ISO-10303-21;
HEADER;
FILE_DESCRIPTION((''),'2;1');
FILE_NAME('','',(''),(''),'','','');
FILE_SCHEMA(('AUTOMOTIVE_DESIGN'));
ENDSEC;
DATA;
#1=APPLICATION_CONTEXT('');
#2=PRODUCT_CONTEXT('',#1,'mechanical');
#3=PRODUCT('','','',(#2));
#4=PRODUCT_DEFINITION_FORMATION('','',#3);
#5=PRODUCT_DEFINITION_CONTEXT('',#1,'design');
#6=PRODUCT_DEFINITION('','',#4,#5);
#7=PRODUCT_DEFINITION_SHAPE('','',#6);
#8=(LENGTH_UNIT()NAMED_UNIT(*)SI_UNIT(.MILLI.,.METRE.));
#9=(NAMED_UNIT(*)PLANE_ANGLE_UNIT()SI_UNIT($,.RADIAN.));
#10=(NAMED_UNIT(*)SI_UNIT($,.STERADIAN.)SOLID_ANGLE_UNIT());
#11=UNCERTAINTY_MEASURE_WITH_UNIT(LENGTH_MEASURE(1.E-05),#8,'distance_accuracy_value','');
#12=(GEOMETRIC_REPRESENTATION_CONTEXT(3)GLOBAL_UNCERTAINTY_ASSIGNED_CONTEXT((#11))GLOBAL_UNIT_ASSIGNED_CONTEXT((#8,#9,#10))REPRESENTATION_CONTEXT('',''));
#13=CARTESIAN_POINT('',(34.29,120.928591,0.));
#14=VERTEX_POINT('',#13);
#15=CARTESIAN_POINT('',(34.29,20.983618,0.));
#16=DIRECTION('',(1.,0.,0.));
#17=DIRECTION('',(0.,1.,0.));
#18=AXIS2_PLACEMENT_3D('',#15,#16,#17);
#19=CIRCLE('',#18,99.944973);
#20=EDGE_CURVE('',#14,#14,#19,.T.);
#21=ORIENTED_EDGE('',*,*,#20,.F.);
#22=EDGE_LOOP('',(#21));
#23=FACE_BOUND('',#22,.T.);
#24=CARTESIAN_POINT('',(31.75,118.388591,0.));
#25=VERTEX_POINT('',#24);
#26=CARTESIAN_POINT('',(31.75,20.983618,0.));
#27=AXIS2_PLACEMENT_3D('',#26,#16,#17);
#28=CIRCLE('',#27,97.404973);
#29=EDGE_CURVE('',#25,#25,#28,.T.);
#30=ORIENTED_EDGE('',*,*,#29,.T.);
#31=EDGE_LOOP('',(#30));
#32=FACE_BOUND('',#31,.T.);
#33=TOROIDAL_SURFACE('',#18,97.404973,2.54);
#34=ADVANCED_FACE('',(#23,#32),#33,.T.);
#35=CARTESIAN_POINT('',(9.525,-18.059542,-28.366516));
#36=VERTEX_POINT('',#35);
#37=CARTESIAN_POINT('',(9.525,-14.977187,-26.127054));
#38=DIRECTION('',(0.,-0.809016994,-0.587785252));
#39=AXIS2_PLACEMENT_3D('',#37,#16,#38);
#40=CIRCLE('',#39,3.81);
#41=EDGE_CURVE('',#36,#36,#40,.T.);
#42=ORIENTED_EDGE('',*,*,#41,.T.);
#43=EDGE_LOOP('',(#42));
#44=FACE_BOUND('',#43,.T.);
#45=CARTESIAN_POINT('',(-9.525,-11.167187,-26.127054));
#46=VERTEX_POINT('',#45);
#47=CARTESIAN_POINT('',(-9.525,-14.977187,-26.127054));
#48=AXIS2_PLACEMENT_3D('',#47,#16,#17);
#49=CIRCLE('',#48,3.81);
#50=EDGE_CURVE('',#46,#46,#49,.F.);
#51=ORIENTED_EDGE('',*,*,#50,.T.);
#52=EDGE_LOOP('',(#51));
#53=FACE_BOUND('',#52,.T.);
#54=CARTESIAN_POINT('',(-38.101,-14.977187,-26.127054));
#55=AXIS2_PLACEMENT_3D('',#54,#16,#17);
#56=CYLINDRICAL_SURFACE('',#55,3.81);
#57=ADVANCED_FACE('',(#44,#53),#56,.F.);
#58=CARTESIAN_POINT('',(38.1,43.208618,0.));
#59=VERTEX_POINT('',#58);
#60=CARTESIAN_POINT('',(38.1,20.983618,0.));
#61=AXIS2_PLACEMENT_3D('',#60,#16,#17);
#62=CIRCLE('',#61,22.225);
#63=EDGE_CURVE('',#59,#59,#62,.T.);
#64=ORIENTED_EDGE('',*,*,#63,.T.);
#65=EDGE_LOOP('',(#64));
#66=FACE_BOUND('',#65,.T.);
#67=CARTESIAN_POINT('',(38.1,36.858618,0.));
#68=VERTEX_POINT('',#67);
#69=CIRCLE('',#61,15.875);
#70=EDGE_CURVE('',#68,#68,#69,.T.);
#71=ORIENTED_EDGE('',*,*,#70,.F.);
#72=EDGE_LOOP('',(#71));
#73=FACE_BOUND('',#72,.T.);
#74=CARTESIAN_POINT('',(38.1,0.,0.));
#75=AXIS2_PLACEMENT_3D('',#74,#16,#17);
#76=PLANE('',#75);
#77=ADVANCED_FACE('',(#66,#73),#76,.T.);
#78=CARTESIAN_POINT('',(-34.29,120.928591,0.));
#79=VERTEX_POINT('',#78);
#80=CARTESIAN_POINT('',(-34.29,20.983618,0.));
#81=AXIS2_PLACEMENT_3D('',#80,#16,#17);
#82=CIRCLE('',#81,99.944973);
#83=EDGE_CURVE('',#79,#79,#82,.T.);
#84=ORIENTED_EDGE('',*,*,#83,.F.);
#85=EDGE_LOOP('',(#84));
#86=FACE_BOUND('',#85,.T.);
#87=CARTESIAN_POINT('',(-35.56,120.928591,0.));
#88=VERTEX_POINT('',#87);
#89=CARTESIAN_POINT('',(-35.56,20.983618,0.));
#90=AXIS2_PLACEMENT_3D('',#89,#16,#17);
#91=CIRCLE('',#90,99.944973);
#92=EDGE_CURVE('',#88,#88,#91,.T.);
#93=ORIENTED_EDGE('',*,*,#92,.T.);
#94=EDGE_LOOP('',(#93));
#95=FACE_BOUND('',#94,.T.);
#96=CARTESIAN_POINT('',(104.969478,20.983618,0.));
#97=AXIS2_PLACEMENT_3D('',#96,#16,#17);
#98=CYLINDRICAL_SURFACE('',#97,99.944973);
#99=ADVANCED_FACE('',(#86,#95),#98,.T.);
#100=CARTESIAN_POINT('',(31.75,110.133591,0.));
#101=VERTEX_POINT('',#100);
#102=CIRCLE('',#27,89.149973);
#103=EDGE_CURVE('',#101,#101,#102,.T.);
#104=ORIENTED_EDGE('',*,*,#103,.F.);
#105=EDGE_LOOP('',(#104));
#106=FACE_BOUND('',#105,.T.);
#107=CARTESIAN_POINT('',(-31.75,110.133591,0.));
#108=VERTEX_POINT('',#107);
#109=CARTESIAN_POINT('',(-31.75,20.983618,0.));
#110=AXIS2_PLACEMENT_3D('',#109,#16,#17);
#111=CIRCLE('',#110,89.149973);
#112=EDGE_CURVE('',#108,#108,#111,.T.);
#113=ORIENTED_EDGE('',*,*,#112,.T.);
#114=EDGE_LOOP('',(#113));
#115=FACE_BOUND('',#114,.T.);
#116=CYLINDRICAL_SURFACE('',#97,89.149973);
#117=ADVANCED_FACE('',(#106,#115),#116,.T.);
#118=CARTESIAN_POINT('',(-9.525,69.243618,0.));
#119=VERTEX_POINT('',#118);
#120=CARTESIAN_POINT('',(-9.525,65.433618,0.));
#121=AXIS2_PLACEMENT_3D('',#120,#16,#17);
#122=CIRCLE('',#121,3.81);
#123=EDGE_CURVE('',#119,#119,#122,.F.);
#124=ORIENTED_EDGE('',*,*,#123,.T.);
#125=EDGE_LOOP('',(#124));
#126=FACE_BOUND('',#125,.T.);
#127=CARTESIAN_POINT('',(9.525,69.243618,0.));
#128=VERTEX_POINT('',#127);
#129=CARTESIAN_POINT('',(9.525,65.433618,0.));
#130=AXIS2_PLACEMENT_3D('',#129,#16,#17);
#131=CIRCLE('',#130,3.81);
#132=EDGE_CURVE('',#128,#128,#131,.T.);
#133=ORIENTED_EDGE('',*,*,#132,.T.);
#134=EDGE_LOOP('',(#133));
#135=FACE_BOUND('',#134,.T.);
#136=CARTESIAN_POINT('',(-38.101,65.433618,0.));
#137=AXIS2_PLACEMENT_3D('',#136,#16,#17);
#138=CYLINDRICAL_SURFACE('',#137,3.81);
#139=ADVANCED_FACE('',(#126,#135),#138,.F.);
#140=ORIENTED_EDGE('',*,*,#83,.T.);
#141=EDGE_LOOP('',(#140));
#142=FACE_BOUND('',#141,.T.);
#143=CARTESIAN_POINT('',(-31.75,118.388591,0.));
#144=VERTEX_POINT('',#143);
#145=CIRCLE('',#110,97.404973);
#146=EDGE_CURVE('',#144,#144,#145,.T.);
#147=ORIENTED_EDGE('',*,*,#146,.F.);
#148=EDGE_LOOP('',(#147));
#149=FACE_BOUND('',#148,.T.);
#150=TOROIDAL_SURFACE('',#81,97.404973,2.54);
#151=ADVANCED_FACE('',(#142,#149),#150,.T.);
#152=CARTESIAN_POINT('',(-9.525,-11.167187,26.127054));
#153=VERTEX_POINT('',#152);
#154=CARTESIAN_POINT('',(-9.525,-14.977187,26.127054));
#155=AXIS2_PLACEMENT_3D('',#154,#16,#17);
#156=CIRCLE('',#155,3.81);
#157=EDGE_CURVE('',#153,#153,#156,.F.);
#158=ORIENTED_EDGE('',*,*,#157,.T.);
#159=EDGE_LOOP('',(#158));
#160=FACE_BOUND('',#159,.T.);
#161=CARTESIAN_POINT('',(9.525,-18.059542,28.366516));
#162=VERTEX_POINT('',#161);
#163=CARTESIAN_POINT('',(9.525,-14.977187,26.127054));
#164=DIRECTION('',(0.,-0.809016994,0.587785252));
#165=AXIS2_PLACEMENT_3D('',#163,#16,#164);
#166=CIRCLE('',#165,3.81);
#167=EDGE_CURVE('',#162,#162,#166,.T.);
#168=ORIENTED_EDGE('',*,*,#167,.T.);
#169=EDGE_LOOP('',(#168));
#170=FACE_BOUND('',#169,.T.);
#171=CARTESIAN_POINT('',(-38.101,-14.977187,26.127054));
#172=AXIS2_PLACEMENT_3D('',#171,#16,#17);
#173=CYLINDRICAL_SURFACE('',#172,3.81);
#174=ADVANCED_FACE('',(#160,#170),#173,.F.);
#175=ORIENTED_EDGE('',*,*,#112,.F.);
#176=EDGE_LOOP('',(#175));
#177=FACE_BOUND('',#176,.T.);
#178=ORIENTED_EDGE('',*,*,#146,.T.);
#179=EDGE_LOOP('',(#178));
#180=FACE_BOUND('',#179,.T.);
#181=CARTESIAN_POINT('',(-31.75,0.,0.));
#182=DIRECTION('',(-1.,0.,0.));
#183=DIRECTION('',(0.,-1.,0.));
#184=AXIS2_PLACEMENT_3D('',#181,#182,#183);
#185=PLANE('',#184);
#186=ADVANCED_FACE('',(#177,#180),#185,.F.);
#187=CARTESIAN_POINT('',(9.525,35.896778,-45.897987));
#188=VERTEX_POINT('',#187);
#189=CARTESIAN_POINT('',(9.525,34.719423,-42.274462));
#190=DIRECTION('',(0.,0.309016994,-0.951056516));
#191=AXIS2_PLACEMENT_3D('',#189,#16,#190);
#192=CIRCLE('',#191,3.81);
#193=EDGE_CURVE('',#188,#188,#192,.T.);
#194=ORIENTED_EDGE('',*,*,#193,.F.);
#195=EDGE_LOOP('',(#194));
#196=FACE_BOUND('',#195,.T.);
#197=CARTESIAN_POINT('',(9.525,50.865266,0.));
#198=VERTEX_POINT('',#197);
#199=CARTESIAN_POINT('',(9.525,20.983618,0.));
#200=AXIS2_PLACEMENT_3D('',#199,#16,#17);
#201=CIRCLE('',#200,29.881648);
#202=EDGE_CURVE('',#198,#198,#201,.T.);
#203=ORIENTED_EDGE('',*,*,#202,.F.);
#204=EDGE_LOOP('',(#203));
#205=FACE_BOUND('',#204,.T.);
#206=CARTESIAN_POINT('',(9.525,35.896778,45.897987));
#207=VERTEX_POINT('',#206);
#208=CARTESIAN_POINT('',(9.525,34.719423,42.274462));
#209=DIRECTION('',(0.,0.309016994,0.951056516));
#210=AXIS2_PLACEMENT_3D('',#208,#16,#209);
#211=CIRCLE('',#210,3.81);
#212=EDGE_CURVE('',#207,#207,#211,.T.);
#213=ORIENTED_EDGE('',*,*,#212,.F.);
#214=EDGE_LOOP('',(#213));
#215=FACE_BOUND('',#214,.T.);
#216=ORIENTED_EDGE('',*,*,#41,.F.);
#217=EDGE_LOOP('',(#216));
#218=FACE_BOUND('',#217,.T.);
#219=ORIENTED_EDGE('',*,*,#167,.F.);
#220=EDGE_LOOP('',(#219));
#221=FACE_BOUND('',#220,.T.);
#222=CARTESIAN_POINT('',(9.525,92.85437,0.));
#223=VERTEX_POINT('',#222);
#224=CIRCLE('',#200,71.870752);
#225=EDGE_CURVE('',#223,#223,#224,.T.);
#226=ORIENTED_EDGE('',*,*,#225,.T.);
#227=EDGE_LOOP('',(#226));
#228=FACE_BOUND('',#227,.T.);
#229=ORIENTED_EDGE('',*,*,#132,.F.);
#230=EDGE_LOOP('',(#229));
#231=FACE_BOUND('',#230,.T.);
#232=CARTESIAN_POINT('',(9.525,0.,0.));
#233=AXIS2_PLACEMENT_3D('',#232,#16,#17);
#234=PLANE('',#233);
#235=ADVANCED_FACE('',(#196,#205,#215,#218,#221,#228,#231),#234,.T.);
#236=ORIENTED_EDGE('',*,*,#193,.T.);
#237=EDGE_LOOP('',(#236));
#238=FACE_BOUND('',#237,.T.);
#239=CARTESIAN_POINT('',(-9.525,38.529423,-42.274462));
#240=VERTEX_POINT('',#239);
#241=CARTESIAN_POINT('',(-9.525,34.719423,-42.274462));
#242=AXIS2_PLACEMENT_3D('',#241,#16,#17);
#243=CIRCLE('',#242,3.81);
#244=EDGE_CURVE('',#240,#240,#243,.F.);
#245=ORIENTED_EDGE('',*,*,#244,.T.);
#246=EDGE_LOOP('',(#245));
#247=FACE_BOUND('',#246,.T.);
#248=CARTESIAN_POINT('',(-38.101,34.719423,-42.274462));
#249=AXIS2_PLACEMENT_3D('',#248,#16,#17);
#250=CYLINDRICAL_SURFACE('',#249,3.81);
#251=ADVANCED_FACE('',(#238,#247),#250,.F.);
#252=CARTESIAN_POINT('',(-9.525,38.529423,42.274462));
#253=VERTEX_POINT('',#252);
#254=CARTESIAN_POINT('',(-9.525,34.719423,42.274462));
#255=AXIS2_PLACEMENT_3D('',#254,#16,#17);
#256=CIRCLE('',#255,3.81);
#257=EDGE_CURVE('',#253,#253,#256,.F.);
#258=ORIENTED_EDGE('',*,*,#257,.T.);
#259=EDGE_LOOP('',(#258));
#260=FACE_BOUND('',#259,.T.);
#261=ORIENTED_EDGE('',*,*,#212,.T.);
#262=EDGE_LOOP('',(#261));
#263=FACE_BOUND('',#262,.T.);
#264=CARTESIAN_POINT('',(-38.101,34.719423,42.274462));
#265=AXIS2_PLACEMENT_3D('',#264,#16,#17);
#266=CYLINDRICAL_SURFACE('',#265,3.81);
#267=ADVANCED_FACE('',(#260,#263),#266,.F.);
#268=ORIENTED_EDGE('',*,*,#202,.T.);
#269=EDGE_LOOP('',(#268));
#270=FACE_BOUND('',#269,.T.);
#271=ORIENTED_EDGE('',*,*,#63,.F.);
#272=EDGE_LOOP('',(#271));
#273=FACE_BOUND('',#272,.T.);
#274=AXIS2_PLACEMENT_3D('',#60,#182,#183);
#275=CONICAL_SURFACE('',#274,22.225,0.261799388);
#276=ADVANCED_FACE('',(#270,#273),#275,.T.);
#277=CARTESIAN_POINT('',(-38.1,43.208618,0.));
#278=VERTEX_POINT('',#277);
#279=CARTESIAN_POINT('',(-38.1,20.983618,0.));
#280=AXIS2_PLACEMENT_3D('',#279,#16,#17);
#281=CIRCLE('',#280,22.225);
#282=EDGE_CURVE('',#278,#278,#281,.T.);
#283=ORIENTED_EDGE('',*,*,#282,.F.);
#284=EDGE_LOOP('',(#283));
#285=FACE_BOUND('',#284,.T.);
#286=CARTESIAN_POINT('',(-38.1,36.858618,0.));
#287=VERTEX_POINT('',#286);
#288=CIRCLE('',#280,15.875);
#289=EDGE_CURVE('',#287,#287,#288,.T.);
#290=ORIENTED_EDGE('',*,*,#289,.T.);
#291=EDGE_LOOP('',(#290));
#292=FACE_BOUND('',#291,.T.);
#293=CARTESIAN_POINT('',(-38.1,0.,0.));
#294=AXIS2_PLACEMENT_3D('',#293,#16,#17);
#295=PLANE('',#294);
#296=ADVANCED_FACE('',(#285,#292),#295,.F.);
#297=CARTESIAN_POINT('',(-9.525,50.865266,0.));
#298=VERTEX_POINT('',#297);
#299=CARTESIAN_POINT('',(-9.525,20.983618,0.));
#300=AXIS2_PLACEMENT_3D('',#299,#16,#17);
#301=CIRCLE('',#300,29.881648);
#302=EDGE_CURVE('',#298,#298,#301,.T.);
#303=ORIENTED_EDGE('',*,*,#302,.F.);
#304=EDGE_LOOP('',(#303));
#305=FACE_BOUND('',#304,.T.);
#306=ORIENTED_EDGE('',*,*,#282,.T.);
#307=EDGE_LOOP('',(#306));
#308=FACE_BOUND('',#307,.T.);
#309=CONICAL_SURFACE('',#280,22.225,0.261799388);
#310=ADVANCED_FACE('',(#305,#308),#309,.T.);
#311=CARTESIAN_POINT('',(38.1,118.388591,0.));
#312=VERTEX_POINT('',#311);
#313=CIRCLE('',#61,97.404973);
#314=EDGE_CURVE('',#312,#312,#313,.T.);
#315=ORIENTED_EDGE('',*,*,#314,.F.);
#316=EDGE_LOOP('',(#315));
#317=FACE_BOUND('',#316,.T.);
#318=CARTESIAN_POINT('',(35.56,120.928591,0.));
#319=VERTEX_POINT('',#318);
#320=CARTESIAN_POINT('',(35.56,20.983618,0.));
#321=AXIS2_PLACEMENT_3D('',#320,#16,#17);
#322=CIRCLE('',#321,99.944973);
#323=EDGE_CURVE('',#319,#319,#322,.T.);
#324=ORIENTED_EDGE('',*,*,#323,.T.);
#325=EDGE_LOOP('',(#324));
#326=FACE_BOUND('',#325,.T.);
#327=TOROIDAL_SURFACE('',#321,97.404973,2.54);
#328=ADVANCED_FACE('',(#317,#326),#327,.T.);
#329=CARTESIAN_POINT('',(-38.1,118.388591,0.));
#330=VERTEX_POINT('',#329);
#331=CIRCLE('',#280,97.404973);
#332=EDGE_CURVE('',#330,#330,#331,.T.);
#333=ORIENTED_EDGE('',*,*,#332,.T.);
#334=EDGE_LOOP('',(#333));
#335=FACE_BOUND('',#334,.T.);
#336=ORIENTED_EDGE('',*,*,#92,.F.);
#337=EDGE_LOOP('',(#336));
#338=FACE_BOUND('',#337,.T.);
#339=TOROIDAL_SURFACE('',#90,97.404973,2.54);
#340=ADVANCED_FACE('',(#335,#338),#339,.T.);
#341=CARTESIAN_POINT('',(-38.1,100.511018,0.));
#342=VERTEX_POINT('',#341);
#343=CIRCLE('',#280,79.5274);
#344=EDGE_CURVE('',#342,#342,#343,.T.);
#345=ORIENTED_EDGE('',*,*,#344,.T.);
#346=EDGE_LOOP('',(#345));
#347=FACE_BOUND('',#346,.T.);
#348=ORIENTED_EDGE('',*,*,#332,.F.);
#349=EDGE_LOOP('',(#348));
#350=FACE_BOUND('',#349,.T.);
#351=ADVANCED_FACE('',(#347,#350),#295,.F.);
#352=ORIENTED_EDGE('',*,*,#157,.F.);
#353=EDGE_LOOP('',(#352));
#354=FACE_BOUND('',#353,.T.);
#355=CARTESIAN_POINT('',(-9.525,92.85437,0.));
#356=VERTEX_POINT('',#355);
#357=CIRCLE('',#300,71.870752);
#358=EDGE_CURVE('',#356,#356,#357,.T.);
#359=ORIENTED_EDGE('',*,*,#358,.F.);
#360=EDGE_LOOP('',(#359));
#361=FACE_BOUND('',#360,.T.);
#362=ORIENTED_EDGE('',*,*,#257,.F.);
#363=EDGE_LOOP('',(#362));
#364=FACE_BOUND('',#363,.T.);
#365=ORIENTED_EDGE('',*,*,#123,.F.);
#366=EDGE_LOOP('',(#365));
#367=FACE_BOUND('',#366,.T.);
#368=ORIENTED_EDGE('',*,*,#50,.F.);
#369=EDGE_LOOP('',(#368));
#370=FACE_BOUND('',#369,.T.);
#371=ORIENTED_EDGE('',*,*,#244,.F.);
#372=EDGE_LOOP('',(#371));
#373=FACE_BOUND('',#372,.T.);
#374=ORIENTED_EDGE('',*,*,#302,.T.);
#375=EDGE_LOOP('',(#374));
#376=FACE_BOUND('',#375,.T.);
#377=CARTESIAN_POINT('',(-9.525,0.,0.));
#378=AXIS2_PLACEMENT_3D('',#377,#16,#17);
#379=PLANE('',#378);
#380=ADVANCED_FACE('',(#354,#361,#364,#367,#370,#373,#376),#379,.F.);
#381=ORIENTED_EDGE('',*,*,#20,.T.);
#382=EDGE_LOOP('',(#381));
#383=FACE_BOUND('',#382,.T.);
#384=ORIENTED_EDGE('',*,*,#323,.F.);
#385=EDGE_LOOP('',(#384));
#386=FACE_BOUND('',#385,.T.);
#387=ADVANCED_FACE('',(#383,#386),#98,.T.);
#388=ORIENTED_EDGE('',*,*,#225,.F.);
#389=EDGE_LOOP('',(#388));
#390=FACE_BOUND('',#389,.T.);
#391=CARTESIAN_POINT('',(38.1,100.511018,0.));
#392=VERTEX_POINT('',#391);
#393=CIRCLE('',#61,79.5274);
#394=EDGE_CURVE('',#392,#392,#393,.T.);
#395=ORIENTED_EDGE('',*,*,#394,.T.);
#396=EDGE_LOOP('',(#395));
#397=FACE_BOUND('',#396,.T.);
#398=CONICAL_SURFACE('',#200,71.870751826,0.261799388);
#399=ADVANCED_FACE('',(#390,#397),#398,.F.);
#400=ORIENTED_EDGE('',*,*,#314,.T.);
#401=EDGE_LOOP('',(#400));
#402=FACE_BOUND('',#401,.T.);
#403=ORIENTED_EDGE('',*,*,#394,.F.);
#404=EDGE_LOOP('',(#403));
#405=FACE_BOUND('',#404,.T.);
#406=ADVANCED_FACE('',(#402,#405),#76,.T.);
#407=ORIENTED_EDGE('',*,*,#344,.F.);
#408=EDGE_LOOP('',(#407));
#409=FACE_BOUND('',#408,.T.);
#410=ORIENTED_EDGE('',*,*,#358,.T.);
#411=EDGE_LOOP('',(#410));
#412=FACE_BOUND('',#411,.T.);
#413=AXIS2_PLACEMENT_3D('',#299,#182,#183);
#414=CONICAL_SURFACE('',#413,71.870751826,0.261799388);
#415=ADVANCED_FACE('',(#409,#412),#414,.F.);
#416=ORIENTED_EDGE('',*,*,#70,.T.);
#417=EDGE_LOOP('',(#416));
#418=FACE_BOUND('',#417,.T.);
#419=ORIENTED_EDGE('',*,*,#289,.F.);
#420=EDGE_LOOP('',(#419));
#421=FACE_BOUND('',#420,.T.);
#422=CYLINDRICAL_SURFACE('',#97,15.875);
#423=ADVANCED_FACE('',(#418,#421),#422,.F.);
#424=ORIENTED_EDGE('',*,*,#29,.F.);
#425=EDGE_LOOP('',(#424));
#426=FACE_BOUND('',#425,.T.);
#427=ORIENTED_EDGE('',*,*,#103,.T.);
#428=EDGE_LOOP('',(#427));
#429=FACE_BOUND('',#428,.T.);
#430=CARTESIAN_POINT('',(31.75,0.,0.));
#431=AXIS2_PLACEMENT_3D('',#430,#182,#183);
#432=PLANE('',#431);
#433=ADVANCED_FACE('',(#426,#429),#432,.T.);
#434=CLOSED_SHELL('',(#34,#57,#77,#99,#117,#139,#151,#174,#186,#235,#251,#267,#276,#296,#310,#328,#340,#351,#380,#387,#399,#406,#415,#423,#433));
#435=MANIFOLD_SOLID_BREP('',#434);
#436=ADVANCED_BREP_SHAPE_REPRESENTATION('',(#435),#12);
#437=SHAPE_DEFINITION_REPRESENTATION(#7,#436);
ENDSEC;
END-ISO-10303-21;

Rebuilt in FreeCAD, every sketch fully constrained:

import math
import FreeCAD as App
import Part
import Sketcher
from FreeCAD import Vector
Q = App.Units.Quantity

doc = App.newDocument("Part")
body = doc.addObject("PartDesign::Body", "Body")

# Sketch on XY plane
sketch1 = doc.addObject("Sketcher::SketchObject", "Sketch")
body.addObject(sketch1)
sketch1.AttachmentSupport = (doc.XY_Plane, [""])
sketch1.MapMode = "FlatFace"
sketch1.addGeometry([
    Part.LineSegment(Vector(38.1, 36.9, 0), Vector(38.1, 43.2, 0)),  # 0
    Part.LineSegment(Vector(38.1, 43.2, 0), Vector(9.5, 50.9, 0)),  # 1
    Part.LineSegment(Vector(9.5, 50.9, 0), Vector(9.5, 92.9, 0)),  # 2
    Part.LineSegment(Vector(9.5, 92.9, 0), Vector(38.1, 100.5, 0)),  # 3
    Part.LineSegment(Vector(38.1, 100.5, 0), Vector(38.1, 118.4, 0)),  # 4
    Part.ArcOfCircle(Part.Circle(Vector(35.6, 118.4, 0), Vector(0, 0, 1), 2.5), math.radians(0), math.radians(90)),  # 5
    Part.LineSegment(Vector(35.6, 120.9, 0), Vector(34.3, 120.9, 0)),  # 6
    Part.ArcOfCircle(Part.Circle(Vector(34.3, 118.4, 0), Vector(0, 0, 1), 2.5), math.radians(90), math.radians(180)),  # 7
    Part.LineSegment(Vector(31.8, 118.4, 0), Vector(31.8, 110.1, 0)),  # 8
    Part.LineSegment(Vector(31.8, 110.1, 0), Vector(-31.8, 110.1, 0)),  # 9
    Part.LineSegment(Vector(-31.8, 110.1, 0), Vector(-31.8, 118.4, 0)),  # 10
    Part.ArcOfCircle(Part.Circle(Vector(-34.3, 118.4, 0), Vector(0, 0, 1), 2.5), math.radians(0), math.radians(90)),  # 11
    Part.LineSegment(Vector(-34.3, 120.9, 0), Vector(-35.6, 120.9, 0)),  # 12
    Part.ArcOfCircle(Part.Circle(Vector(-35.6, 118.4, 0), Vector(0, 0, 1), 2.5), math.radians(90), math.radians(180)),  # 13
    Part.LineSegment(Vector(-38.1, 118.4, 0), Vector(-38.1, 100.5, 0)),  # 14
    Part.LineSegment(Vector(-38.1, 100.5, 0), Vector(-9.5, 92.9, 0)),  # 15
    Part.LineSegment(Vector(-9.5, 92.9, 0), Vector(-9.5, 50.9, 0)),  # 16
    Part.LineSegment(Vector(-9.5, 50.9, 0), Vector(-38.1, 43.2, 0)),  # 17
    Part.LineSegment(Vector(-38.1, 43.2, 0), Vector(-38.1, 36.9, 0)),  # 18
    Part.LineSegment(Vector(-38.1, 36.9, 0), Vector(38.1, 36.9, 0)),  # 19
], False)
sketch1.addGeometry(Part.LineSegment(Vector(38.1, 21, 0), Vector(-38.1, 21, 0)), True)  # axis
sketch1.addConstraint([
    Sketcher.Constraint("Coincident", 0, 2, 1, 1),
    Sketcher.Constraint("Coincident", 1, 2, 2, 1),
    Sketcher.Constraint("Coincident", 2, 2, 3, 1),
    Sketcher.Constraint("Coincident", 3, 2, 4, 1),
    Sketcher.Constraint("Tangent", 4, 2, 5, 1),
    Sketcher.Constraint("Tangent", 5, 2, 6, 1),
    Sketcher.Constraint("Tangent", 6, 2, 7, 1),
    Sketcher.Constraint("Tangent", 7, 2, 8, 1),
    Sketcher.Constraint("Coincident", 8, 2, 9, 1),
    Sketcher.Constraint("Coincident", 9, 2, 10, 1),
    Sketcher.Constraint("Tangent", 10, 2, 11, 1),
    Sketcher.Constraint("Tangent", 11, 2, 12, 1),
    Sketcher.Constraint("Tangent", 12, 2, 13, 1),
    Sketcher.Constraint("Tangent", 13, 2, 14, 1),
    Sketcher.Constraint("Coincident", 14, 2, 15, 1),
    Sketcher.Constraint("Coincident", 15, 2, 16, 1),
    Sketcher.Constraint("Coincident", 16, 2, 17, 1),
    Sketcher.Constraint("Coincident", 17, 2, 18, 1),
    Sketcher.Constraint("Coincident", 18, 2, 19, 1),
    Sketcher.Constraint("Coincident", 19, 2, 0, 1),
    Sketcher.Constraint("Vertical", 0),
    Sketcher.Constraint("Vertical", 2),
    Sketcher.Constraint("Vertical", 4),
    Sketcher.Constraint("Horizontal", 6),
    Sketcher.Constraint("Vertical", 8),
    Sketcher.Constraint("Horizontal", 9),
    Sketcher.Constraint("Vertical", 10),
    Sketcher.Constraint("Horizontal", 12),
    Sketcher.Constraint("Vertical", 14),
    Sketcher.Constraint("Vertical", 16),
    Sketcher.Constraint("Vertical", 18),
    Sketcher.Constraint("Horizontal", 19),
    Sketcher.Constraint("Horizontal", 20),
    Sketcher.Constraint("Equal", 5, 7),
    Sketcher.Constraint("Equal", 7, 11),
    Sketcher.Constraint("Equal", 11, 13),
    Sketcher.Constraint("Symmetric", 7, 3, 11, 3, -2),
    Sketcher.Constraint("Symmetric", 3, 2, 14, 2, -2),
    Sketcher.Constraint("Symmetric", 2, 2, 15, 2, -2),
    Sketcher.Constraint("Symmetric", 0, 2, 17, 2, -2),
    Sketcher.Constraint("Parallel", 1, 15),
    Sketcher.Constraint("Parallel", 3, 17),
    Sketcher.Constraint("Vertical", 0, 2, 3, 2),
    Sketcher.Constraint("Vertical", 19, 2, 20, 1),
    Sketcher.Constraint("Vertical", 18, 2, 20, 2),
    Sketcher.Constraint("Radius", 5, Q("0.1 in")),
    Sketcher.Constraint("DistanceX", 19, 1, 19, 2, Q("3 in")),
    Sketcher.Constraint("DistanceX", 9, 2, 9, 1, Q("2.5 in")),
    Sketcher.Constraint("Angle", 1, Q("165 deg")),
    Sketcher.Constraint("DistanceY", 0, 1, 0, 2, Q("0.25 in")),
    Sketcher.Constraint("DistanceY", 8, 2, 8, 1, Q("0.325 in")),
    Sketcher.Constraint("DistanceX", 15, 2, 2, 2, Q("0.75 in")),
    Sketcher.Constraint("DistanceY", 0, 2, 3, 2, Q("2.256 in")),
    Sketcher.Constraint("DistanceY", 20, 1, 19, 2, Q("0.625 in")),
    Sketcher.Constraint("DistanceY", 4, 1, 4, 2, Q("17.877573 mm")),
    Sketcher.Constraint("DistanceY", -1, 1, 5, 3, Q("118.388591 mm")),
])
revolution = doc.addObject("PartDesign::Revolution", "Revolution")
body.addObject(revolution)
revolution.Profile = sketch1
revolution.ReferenceAxis = (sketch1, ["Axis0"])
revolution.Angle = 360

# Sketch on YZ plane
sketch2 = doc.addObject("Sketcher::SketchObject", "Sketch001")
body.addObject(sketch2)
sketch2.AttachmentSupport = (doc.YZ_Plane, [""])
sketch2.MapMode = "FlatFace"
sketch2.AttachmentOffset = App.Placement(Vector(0, 0, 0.375 * 25.4), App.Rotation())
sketch2.addGeometry(Part.Circle(Vector(65.4, 0, 0), Vector(0, 0, 1), 3.8), False)
sketch2.addConstraint([
    Sketcher.Constraint("PointOnObject", 0, 3, -1),
    Sketcher.Constraint("Diameter", 0, Q("0.3 in")),
    Sketcher.Constraint("DistanceX", -1, 1, 0, 3, Q("65.433618 mm")),
])
pocket1 = doc.addObject("PartDesign::Pocket", "Pocket")
body.addObject(pocket1)
pocket1.Profile = sketch2
pocket1.Length = Q("0.75 in")
doc.recompute()

datumline = doc.addObject("PartDesign::Line", "DatumLine")
body.addObject(datumline)
datumline.Placement = App.Placement(Vector(0, 20.983618, 0), App.Rotation(Vector(0, 0, 1), Vector(1, 0, 0)))
polarpattern = doc.addObject("PartDesign::PolarPattern", "PolarPattern")
body.addObject(polarpattern)
polarpattern.Originals = [pocket1]
polarpattern.Axis = (datumline, [""])
polarpattern.Angle = 360
polarpattern.Occurrences = 5
body.Tip = polarpattern

doc.recompute()
